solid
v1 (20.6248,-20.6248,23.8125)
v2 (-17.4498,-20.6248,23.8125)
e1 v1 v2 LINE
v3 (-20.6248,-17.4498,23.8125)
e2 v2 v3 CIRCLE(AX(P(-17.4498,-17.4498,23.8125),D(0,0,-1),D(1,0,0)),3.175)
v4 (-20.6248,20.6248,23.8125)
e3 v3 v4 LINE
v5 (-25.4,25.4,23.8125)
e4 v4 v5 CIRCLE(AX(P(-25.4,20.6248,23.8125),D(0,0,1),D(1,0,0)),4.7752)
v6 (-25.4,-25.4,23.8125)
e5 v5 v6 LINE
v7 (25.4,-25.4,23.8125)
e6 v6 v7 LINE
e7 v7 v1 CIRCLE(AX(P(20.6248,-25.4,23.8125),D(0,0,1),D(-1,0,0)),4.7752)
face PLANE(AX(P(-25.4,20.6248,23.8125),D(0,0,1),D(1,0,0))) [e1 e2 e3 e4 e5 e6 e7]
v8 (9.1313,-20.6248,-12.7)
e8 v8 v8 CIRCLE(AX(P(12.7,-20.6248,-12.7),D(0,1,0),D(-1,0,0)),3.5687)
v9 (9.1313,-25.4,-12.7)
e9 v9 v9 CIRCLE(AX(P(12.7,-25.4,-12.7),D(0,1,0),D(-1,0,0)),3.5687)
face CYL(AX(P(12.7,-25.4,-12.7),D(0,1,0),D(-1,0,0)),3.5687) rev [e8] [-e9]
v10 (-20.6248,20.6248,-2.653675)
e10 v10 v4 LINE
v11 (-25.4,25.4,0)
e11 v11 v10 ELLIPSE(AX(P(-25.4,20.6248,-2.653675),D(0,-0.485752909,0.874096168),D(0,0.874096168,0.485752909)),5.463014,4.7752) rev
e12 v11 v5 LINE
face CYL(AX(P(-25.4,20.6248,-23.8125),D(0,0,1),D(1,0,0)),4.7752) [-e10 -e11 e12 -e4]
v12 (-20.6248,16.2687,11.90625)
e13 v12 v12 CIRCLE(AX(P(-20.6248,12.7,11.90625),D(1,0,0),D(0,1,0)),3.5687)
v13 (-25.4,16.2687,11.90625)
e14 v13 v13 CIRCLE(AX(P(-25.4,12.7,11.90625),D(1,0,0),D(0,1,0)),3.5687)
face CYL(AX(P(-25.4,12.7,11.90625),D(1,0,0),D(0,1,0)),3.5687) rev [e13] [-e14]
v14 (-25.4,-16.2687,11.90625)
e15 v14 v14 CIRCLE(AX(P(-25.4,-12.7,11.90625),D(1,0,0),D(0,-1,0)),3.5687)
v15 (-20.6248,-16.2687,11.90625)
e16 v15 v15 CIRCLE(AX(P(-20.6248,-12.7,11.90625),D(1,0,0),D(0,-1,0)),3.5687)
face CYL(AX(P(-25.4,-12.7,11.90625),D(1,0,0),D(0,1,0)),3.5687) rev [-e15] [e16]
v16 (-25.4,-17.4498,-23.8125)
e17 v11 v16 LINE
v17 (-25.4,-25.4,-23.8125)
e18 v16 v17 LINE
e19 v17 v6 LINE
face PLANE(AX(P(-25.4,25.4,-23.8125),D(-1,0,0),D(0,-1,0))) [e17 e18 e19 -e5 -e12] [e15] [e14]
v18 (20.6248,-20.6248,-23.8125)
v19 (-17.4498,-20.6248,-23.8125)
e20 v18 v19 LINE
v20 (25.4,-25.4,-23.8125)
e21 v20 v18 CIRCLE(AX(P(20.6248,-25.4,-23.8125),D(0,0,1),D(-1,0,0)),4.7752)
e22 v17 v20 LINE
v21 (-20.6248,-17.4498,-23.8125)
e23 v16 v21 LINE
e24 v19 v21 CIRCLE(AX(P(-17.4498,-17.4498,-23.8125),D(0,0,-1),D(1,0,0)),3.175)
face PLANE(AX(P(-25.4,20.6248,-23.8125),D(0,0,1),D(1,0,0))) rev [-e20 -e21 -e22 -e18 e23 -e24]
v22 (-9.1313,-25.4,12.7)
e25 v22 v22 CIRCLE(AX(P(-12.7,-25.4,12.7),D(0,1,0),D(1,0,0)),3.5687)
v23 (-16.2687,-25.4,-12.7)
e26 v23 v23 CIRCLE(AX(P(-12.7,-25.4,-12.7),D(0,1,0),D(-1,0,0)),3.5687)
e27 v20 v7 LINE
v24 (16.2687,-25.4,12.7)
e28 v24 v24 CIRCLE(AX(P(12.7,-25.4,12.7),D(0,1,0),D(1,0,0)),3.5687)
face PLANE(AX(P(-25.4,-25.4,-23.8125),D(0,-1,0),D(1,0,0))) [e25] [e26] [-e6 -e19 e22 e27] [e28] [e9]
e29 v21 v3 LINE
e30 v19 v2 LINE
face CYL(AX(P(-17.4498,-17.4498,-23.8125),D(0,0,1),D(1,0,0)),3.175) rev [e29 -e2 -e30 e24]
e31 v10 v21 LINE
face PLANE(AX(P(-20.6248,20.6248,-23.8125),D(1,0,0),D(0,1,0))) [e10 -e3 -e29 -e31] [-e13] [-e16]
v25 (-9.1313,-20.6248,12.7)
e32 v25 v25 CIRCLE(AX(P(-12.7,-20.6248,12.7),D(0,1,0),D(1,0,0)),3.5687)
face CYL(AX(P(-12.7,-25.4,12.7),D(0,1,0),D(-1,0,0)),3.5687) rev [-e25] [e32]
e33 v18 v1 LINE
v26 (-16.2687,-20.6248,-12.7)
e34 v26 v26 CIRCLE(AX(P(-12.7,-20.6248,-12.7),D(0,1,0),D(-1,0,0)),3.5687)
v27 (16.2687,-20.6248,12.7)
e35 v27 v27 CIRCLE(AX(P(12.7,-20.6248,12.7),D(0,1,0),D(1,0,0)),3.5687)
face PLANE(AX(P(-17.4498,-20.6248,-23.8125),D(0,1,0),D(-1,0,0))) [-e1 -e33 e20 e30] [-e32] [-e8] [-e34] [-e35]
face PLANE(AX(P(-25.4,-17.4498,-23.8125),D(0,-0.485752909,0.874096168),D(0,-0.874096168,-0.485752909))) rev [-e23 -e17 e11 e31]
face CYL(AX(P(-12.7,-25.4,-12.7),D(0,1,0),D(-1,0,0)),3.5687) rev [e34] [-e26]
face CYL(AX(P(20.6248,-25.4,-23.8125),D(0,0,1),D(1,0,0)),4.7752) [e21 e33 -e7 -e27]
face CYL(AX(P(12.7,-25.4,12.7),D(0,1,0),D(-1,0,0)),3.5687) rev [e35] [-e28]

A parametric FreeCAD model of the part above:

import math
import FreeCAD as App
import Part
import Sketcher
from FreeCAD import Vector
Q = App.Units.Quantity

doc = App.newDocument("Part")
body = doc.addObject("PartDesign::Body", "Body")

# Sketch on XY plane
sketch1 = body.newObject("Sketcher::SketchObject", "Sketch")
sketch1.AttachmentSupport = (doc.getObject("XY_Plane"), [""])
sketch1.MapMode = "FlatFace"
sketch1.addGeometry([
    Part.LineSegment(Vector(-25.4, 25.4, 0), Vector(-25.4, -25.4, 0)),  # 0
    Part.LineSegment(Vector(-25.4, -25.4, 0), Vector(25.4, -25.4, 0)),  # 1
    Part.ArcOfCircle(Part.Circle(Vector(20.6248, -25.4, 0), Vector(0, 0, 1), 4.7752), math.radians(0), math.radians(90)),  # 2
    Part.LineSegment(Vector(20.6248, -20.6248, 0), Vector(-17.4498, -20.6248, 0)),  # 3
    Part.ArcOfCircle(Part.Circle(Vector(-17.4498, -17.4498, 0), Vector(0, 0, 1), 3.175), math.radians(-180), math.radians(-90)),  # 4
    Part.LineSegment(Vector(-20.6248, -17.4498, 0), Vector(-20.6248, 20.6248, 0)),  # 5
    Part.ArcOfCircle(Part.Circle(Vector(-25.4, 20.6248, 0), Vector(0, 0, 1), 4.7752), math.radians(0), math.radians(90)),  # 6
], False)
sketch1.addConstraint([
    Sketcher.Constraint("Coincident", 0, 2, 1, 1),
    Sketcher.Constraint("Coincident", 1, 2, 2, 1),
    Sketcher.Constraint("Tangent", 2, 2, 3, 1),
    Sketcher.Constraint("Tangent", 3, 2, 4, 2),
    Sketcher.Constraint("Tangent", 4, 1, 5, 1),
    Sketcher.Constraint("Tangent", 5, 2, 6, 1),
    Sketcher.Constraint("Coincident", 6, 2, 0, 1),
    Sketcher.Constraint("Vertical", 0),
    Sketcher.Constraint("Horizontal", 1),
    Sketcher.Constraint("Horizontal", 3),
    Sketcher.Constraint("Vertical", 5),
    Sketcher.Constraint("Equal", 2, 6),
    Sketcher.Constraint("Symmetric", 2, 2, 5, 2, -1, 1),
    Sketcher.Constraint("Symmetric", 1, 2, 6, 2, -1, 1),
    Sketcher.Constraint("Equal", 1, 0),
    Sketcher.Constraint("DistanceX", 1, 1, 1, 2, Q("2 in")),
    Sketcher.Constraint("Radius", 2, Q("0.188 in")),
    Sketcher.Constraint("Radius", 4, Q("0.125 in")),
])
pad1 = body.newObject("PartDesign::Pad", "Pad")
pad1.Profile = sketch1
pad1.Type = "TwoLengths"
pad1.Length = Q("0.9375 in")
pad1.Length2 = Q("0.9375 in")

# Sketch on YZ plane
sketch2 = body.newObject("Sketcher::SketchObject", "Sketch001")
sketch2.AttachmentSupport = (doc.getObject("YZ_Plane"), [""])
sketch2.MapMode = "FlatFace"
sketch2.AttachmentOffset = App.Placement(Vector(0, 0, -0.812 * 25.4), App.Rotation())
sketch2.addGeometry([
    Part.LineSegment(Vector(25.4, -23.8125, 0), Vector(25.4, 0, 0)),
    Part.LineSegment(Vector(25.4, 0, 0), Vector(-17.4498, -23.8125, 0)),
    Part.LineSegment(Vector(-17.4498, -23.8125, 0), Vector(25.4, -23.8125, 0)),
], False)
sketch2.addConstraint([
    Sketcher.Constraint("Coincident", 0, 2, 1, 1),
    Sketcher.Constraint("Coincident", 1, 2, 2, 1),
    Sketcher.Constraint("Coincident", 2, 2, 0, 1),
    Sketcher.Constraint("Vertical", 0),
    Sketcher.Constraint("Horizontal", 2),
    Sketcher.Constraint("PointOnObject", 0, 2, -1),
    Sketcher.Constraint("DistanceX", -1, 1, 0, 2, Q("1 in")),
    Sketcher.Constraint("DistanceX", 2, 1, 2, 2, Q("1.687 in")),
    Sketcher.Constraint("DistanceY", 0, 1, 0, 2, Q("0.9375 in")),
])
pocket1 = body.newObject("PartDesign::Pocket", "Pocket")
pocket1.Profile = sketch2
pocket1.Type = "ThroughAll"
pocket1.Midplane = True

# Sketch on YZ plane
sketch3 = body.newObject("Sketcher::SketchObject", "Sketch002")
sketch3.AttachmentSupport = (doc.getObject("YZ_Plane"), [""])
sketch3.MapMode = "FlatFace"
sketch3.AttachmentOffset = App.Placement(Vector(0, 0, -0.812 * 25.4), App.Rotation())
sketch3.addGeometry([
    Part.Circle(Vector(12.7, 11.90625, 0), Vector(0, 0, 1), 3.5687),
    Part.Circle(Vector(-12.7, 11.90625, 0), Vector(0, 0, 1), 3.5687),
], False)
sketch3.addConstraint([
    Sketcher.Constraint("Equal", 0, 1),
    Sketcher.Constraint("Symmetric", 0, 3, 1, 3, -2),
    Sketcher.Constraint("Diameter", 0, Q("0.281 in")),
    Sketcher.Constraint("DistanceX", 1, 3, 0, 3, Q("1 in")),
    Sketcher.Constraint("DistanceY", -1, 1, 0, 3, Q("0.46875 in")),
])
pocket2 = body.newObject("PartDesign::Pocket", "Pocket001")
pocket2.Profile = sketch3
pocket2.Type = "ThroughAll"

# Sketch on XZ plane
sketch4 = body.newObject("Sketcher::SketchObject", "Sketch003")
sketch4.AttachmentSupport = (doc.getObject("XZ_Plane"), [""])
sketch4.MapMode = "FlatFace"
sketch4.AttachmentOffset = App.Placement(Vector(0, 0, 0.812 * 25.4), App.Rotation())
sketch4.addGeometry([
    Part.Circle(Vector(-12.7, -12.7, 0), Vector(0, 0, 1), 3.5687),
    Part.Circle(Vector(12.7, -12.7, 0), Vector(0, 0, 1), 3.5687),
    Part.Circle(Vector(12.7, 12.7, 0), Vector(0, 0, 1), 3.5687),
    Part.Circle(Vector(-12.7, 12.7, 0), Vector(0, 0, 1), 3.5687),
], False)
sketch4.addConstraint([
    Sketcher.Constraint("Equal", 0, 1),
    Sketcher.Constraint("Equal", 1, 2),
    Sketcher.Constraint("Equal", 2, 3),
    Sketcher.Constraint("Symmetric", 0, 3, 2, 3, -1, 1),
    Sketcher.Constraint("Symmetric", 1, 3, 3, 3, -1, 1),
    Sketcher.Constraint("Symmetric", 0, 3, 1, 3, -2),
    Sketcher.Constraint("Diameter", 0, Q("0.281 in")),
    Sketcher.Constraint("DistanceX", 0, 3, 1, 3, Q("1 in")),
    Sketcher.Constraint("DistanceY", 1, 3, 2, 3, Q("1 in")),
])
pocket3 = body.newObject("PartDesign::Pocket", "Pocket002")
pocket3.Profile = sketch4
pocket3.Type = "ThroughAll"
pocket3.Reversed = True

doc.recompute()
